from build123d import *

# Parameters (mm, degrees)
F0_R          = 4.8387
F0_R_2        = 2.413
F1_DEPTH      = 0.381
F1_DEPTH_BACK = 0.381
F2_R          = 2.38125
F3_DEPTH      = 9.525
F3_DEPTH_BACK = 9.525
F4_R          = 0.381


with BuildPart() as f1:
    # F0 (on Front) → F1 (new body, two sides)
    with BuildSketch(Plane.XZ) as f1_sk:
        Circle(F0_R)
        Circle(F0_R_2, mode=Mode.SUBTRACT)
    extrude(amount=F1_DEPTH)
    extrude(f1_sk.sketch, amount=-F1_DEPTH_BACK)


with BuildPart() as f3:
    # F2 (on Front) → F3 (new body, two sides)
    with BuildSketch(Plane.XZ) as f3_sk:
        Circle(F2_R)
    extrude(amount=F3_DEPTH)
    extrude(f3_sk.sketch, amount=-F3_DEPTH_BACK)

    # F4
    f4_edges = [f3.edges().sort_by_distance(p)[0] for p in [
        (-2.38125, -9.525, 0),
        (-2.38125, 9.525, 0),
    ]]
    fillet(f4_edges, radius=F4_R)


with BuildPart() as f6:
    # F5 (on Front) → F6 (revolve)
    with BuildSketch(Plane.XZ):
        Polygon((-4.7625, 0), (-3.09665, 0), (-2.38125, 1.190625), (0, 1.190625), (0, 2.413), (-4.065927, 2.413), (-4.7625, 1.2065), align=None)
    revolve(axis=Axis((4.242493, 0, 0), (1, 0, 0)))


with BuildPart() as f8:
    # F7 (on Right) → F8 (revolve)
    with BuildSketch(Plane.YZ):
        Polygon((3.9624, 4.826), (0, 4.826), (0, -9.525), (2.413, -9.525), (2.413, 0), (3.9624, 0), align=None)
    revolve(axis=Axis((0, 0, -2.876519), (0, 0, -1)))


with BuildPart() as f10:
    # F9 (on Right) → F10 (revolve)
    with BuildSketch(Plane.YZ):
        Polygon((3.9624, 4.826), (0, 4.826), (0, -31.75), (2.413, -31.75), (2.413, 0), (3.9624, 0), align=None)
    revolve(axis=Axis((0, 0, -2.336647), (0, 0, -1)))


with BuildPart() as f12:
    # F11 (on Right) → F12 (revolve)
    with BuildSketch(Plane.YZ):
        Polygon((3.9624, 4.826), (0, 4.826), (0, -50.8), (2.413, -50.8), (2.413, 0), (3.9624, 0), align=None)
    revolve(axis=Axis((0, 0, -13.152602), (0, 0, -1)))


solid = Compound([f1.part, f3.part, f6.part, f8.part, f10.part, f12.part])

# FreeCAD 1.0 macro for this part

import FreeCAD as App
import Part
import Sketcher

V = App.Vector
Q = App.Units.Quantity


def edges_at(feature, points):
    """Names of the edges that pass closest to the given points."""
    edges = feature.Shape.Edges
    near = lambda p: min(range(len(edges)), key=lambda i: edges[i].distToShape(Part.Vertex(*p))[0])
    return sorted({f"Edge{near(p) + 1}" for p in points})

doc = App.newDocument("Part")
body = doc.addObject("PartDesign::Body", "Body")

sketch1 = body.newObject("Sketcher::SketchObject", "Sketch")
sketch1.AttachmentSupport = (doc.getObject("XZ_Plane"), [""])
sketch1.MapMode = "FlatFace"
sketch1.addGeometry([
    Part.Circle(V(0, 0, 0), V(0, 0, 1), 4.8),
    Part.Circle(V(0, 0, 0), V(0, 0, 1), 2.4),
], False)
sketch1.addConstraint([
    Sketcher.Constraint("Coincident", 0, 3, -1, 1),
    Sketcher.Constraint("Coincident", 1, 3, -1, 1),
    Sketcher.Constraint("Diameter", 1, Q("0.19 in")),
    Sketcher.Constraint("Diameter", 0, Q("0.381 in")),
])
pad1 = body.newObject("PartDesign::Pad", "Pad")
pad1.Profile = sketch1
pad1.Type = "TwoLengths"
pad1.Length = Q("0.015 in")
pad1.Length2 = Q("0.015 in")
body2 = doc.addObject("PartDesign::Body", "Body001")

sketch2 = body2.newObject("Sketcher::SketchObject", "Sketch001")
sketch2.AttachmentSupport = (doc.getObject("XZ_Plane001"), [""])
sketch2.MapMode = "FlatFace"
sketch2.addGeometry(Part.Circle(V(0, 0, 0), V(0, 0, 1), 2.4), False)
sketch2.addConstraint([
    Sketcher.Constraint("Coincident", 0, 3, -1, 1),
    Sketcher.Constraint("Diameter", 0, Q("0.1875 in")),
])
pad2 = body2.newObject("PartDesign::Pad", "Pad001")
pad2.Profile = sketch2
pad2.Type = "TwoLengths"
pad2.Length = Q("0.375 in")
pad2.Length2 = Q("0.375 in")
doc.recompute()

fillet = body2.newObject("PartDesign::Fillet", "Fillet")
fillet.Base = (pad2, edges_at(pad2, [(-2.381, -9.525, 0), (-2.381, 9.525, 0)]))
fillet.Radius = Q("0.015 in")
body3 = doc.addObject("PartDesign::Body", "Body002")

sketch3 = body3.newObject("Sketcher::SketchObject", "Sketch002")
sketch3.AttachmentSupport = (doc.getObject("XZ_Plane002"), [""])
sketch3.MapMode = "FlatFace"
sketch3.addGeometry([
    Part.LineSegment(V(-4.8, 0, 0), V(-3.1, 0, 0)),
    Part.LineSegment(V(-3.1, 0, 0), V(-2.4, 1.2, 0)),
    Part.LineSegment(V(-2.4, 1.2, 0), V(0, 1.2, 0)),
    Part.LineSegment(V(0, 1.2, 0), V(0, 2.4, 0)),
    Part.LineSegment(V(0, 2.4, 0), V(-4.1, 2.4, 0)),
    Part.LineSegment(V(-4.1, 2.4, 0), V(-4.8, 1.2, 0)),
    Part.LineSegment(V(-4.8, 1.2, 0), V(-4.8, 0, 0)),
], False)
sketch3.addConstraint([
    Sketcher.Constraint("Coincident", 0, 2, 1, 1),
    Sketcher.Constraint("Coincident", 1, 2, 2, 1),
    Sketcher.Constraint("Coincident", 2, 2, 3, 1),
    Sketcher.Constraint("Coincident", 3, 2, 4, 1),
    Sketcher.Constraint("Coincident", 4, 2, 5, 1),
    Sketcher.Constraint("Coincident", 5, 2, 6, 1),
    Sketcher.Constraint("Coincident", 6, 2, 0, 1),
    Sketcher.Constraint("Horizontal", 0),
    Sketcher.Constraint("Horizontal", 2),
    Sketcher.Constraint("Vertical", 3),
    Sketcher.Constraint("Horizontal", 4),
    Sketcher.Constraint("Vertical", 6),
    Sketcher.Constraint("PointOnObject", 0, 2, -1),
    Sketcher.Constraint("PointOnObject", 2, 2, -2),
    Sketcher.Constraint("Angle", 1, Q("58.999988 deg")),
    Sketcher.Constraint("Angle", 5, Q("-119.999996 deg")),
    Sketcher.Constraint("DistanceX", 2, 1, 2, 2, Q("0.09375 in")),
    Sketcher.Constraint("DistanceY", 6, 2, 6, 1, Q("0.0475 in")),
    Sketcher.Constraint("DistanceY", -1, 1, 1, 2, Q("0.046875 in")),
    Sketcher.Constraint("DistanceY", -1, 1, 3, 2, Q("0.095 in")),
    Sketcher.Constraint("DistanceX", 5, 2, -1, 1, Q("0.1875 in")),
])
revolution = body3.newObject("PartDesign::Revolution", "Revolution")
revolution.Profile = sketch3
revolution.ReferenceAxis = (sketch3, ["H_Axis"])
revolution.Angle = 360
body4 = doc.addObject("PartDesign::Body", "Body003")

sketch4 = body4.newObject("Sketcher::SketchObject", "Sketch003")
sketch4.AttachmentSupport = (doc.getObject("YZ_Plane003"), [""])
sketch4.MapMode = "FlatFace"
sketch4.addGeometry([
    Part.LineSegment(V(4, 4.8, 0), V(0, 4.8, 0)),
    Part.LineSegment(V(0, 4.8, 0), V(0, -9.5, 0)),
    Part.LineSegment(V(0, -9.5, 0), V(2.4, -9.5, 0)),
    Part.LineSegment(V(2.4, -9.5, 0), V(2.4, 0, 0)),
    Part.LineSegment(V(2.4, 0, 0), V(4, 0, 0)),
    Part.LineSegment(V(4, 0, 0), V(4, 4.8, 0)),
], False)
sketch4.addConstraint([
    Sketcher.Constraint("Coincident", 0, 2, 1, 1),
    Sketcher.Constraint("Coincident", 1, 2, 2, 1),
    Sketcher.Constraint("Coincident", 2, 2, 3, 1),
    Sketcher.Constraint("Coincident", 3, 2, 4, 1),
    Sketcher.Constraint("Coincident", 4, 2, 5, 1),
    Sketcher.Constraint("Coincident", 5, 2, 0, 1),
    Sketcher.Constraint("Horizontal", 0),
    Sketcher.Constraint("Vertical", 1),
    Sketcher.Constraint("Horizontal", 2),
    Sketcher.Constraint("Vertical", 3),
    Sketcher.Constraint("Horizontal", 4),
    Sketcher.Constraint("Vertical", 5),
    Sketcher.Constraint("PointOnObject", 0, 2, -2),
    Sketcher.Constraint("PointOnObject", 3, 2, -1),
    Sketcher.Constraint("DistanceY", 5, 1, 5, 2, Q("0.19 in")),
    Sketcher.Constraint("DistanceX", 0, 2, 0, 1, Q("0.156 in")),
    Sketcher.Constraint("DistanceX", 2, 1, 2, 2, Q("0.095 in")),
    Sketcher.Constraint("DistanceY", 1, 2, 1, 1, Q("0.565 in")),
])
revolution2 = body4.newObject("PartDesign::Revolution", "Revolution001")
revolution2.Profile = sketch4
revolution2.ReferenceAxis = (sketch4, ["V_Axis"])
revolution2.Angle = 360
body5 = doc.addObject("PartDesign::Body", "Body004")

sketch5 = body5.newObject("Sketcher::SketchObject", "Sketch004")
sketch5.AttachmentSupport = (doc.getObject("YZ_Plane004"), [""])
sketch5.MapMode = "FlatFace"
sketch5.addGeometry([
    Part.LineSegment(V(4, 4.8, 0), V(0, 4.8, 0)),
    Part.LineSegment(V(0, 4.8, 0), V(0, -31.8, 0)),
    Part.LineSegment(V(0, -31.8, 0), V(2.4, -31.8, 0)),
    Part.LineSegment(V(2.4, -31.8, 0), V(2.4, 0, 0)),
    Part.LineSegment(V(2.4, 0, 0), V(4, 0, 0)),
    Part.LineSegment(V(4, 0, 0), V(4, 4.8, 0)),
], False)
sketch5.addConstraint([
    Sketcher.Constraint("Coincident", 0, 2, 1, 1),
    Sketcher.Constraint("Coincident", 1, 2, 2, 1),
    Sketcher.Constraint("Coincident", 2, 2, 3, 1),
    Sketcher.Constraint("Coincident", 3, 2, 4, 1),
    Sketcher.Constraint("Coincident", 4, 2, 5, 1),
    Sketcher.Constraint("Coincident", 5, 2, 0, 1),
    Sketcher.Constraint("Horizontal", 0),
    Sketcher.Constraint("Vertical", 1),
    Sketcher.Constraint("Horizontal", 2),
    Sketcher.Constraint("Vertical", 3),
    Sketcher.Constraint("Horizontal", 4),
    Sketcher.Constraint("Vertical", 5),
    Sketcher.Constraint("PointOnObject", 0, 2, -2),
    Sketcher.Constraint("PointOnObject", 3, 2, -1),
    Sketcher.Constraint("DistanceY", 1, 2, 1, 1, Q("1.44 in")),
    Sketcher.Constraint("DistanceY", 3, 1, 3, 2, Q("1.25 in")),
    Sketcher.Constraint("DistanceX", 0, 2, 0, 1, Q("0.156 in")),
    Sketcher.Constraint("DistanceX", 2, 1, 2, 2, Q("0.095 in")),
])
revolution3 = body5.newObject("PartDesign::Revolution", "Revolution002")
revolution3.Profile = sketch5
revolution3.ReferenceAxis = (sketch5, ["V_Axis"])
revolution3.Angle = 360
body6 = doc.addObject("PartDesign::Body", "Body005")

sketch6 = body6.newObject("Sketcher::SketchObject", "Sketch005")
sketch6.AttachmentSupport = (doc.getObject("YZ_Plane005"), [""])
sketch6.MapMode = "FlatFace"
sketch6.addGeometry([
    Part.LineSegment(V(4, 4.8, 0), V(0, 4.8, 0)),
    Part.LineSegment(V(0, 4.8, 0), V(0, -50.8, 0)),
    Part.LineSegment(V(0, -50.8, 0), V(2.4, -50.8, 0)),
    Part.LineSegment(V(2.4, -50.8, 0), V(2.4, 0, 0)),
    Part.LineSegment(V(2.4, 0, 0), V(4, 0, 0)),
    Part.LineSegment(V(4, 0, 0), V(4, 4.8, 0)),
], False)
sketch6.addConstraint([
    Sketcher.Constraint("Coincident", 0, 2, 1, 1),
    Sketcher.Constraint("Coincident", 1, 2, 2, 1),
    Sketcher.Constraint("Coincident", 2, 2, 3, 1),
    Sketcher.Constraint("Coincident", 3, 2, 4, 1),
    Sketcher.Constraint("Coincident", 4, 2, 5, 1),
    Sketcher.Constraint("Coincident", 5, 2, 0, 1),
    Sketcher.Constraint("Horizontal", 0),
    Sketcher.Constraint("Vertical", 1),
    Sketcher.Constraint("Horizontal", 2),
    Sketcher.Constraint("Vertical", 3),
    Sketcher.Constraint("Horizontal", 4),
    Sketcher.Constraint("Vertical", 5),
    Sketcher.Constraint("PointOnObject", 0, 2, -2),
    Sketcher.Constraint("PointOnObject", 3, 2, -1),
    Sketcher.Constraint("DistanceY", 3, 1, 3, 2, Q("2 in")),
    Sketcher.Constraint("DistanceY", 1, 2, 1, 1, Q("2.19 in")),
    Sketcher.Constraint("DistanceX", 0, 2, 0, 1, Q("0.156 in")),
    Sketcher.Constraint("DistanceX", 2, 1, 2, 2, Q("0.095 in")),
])
revolution4 = body6.newObject("PartDesign::Revolution", "Revolution003")
revolution4.Profile = sketch6
revolution4.ReferenceAxis = (sketch6, ["V_Axis"])
revolution4.Angle = 360

doc.recompute()
